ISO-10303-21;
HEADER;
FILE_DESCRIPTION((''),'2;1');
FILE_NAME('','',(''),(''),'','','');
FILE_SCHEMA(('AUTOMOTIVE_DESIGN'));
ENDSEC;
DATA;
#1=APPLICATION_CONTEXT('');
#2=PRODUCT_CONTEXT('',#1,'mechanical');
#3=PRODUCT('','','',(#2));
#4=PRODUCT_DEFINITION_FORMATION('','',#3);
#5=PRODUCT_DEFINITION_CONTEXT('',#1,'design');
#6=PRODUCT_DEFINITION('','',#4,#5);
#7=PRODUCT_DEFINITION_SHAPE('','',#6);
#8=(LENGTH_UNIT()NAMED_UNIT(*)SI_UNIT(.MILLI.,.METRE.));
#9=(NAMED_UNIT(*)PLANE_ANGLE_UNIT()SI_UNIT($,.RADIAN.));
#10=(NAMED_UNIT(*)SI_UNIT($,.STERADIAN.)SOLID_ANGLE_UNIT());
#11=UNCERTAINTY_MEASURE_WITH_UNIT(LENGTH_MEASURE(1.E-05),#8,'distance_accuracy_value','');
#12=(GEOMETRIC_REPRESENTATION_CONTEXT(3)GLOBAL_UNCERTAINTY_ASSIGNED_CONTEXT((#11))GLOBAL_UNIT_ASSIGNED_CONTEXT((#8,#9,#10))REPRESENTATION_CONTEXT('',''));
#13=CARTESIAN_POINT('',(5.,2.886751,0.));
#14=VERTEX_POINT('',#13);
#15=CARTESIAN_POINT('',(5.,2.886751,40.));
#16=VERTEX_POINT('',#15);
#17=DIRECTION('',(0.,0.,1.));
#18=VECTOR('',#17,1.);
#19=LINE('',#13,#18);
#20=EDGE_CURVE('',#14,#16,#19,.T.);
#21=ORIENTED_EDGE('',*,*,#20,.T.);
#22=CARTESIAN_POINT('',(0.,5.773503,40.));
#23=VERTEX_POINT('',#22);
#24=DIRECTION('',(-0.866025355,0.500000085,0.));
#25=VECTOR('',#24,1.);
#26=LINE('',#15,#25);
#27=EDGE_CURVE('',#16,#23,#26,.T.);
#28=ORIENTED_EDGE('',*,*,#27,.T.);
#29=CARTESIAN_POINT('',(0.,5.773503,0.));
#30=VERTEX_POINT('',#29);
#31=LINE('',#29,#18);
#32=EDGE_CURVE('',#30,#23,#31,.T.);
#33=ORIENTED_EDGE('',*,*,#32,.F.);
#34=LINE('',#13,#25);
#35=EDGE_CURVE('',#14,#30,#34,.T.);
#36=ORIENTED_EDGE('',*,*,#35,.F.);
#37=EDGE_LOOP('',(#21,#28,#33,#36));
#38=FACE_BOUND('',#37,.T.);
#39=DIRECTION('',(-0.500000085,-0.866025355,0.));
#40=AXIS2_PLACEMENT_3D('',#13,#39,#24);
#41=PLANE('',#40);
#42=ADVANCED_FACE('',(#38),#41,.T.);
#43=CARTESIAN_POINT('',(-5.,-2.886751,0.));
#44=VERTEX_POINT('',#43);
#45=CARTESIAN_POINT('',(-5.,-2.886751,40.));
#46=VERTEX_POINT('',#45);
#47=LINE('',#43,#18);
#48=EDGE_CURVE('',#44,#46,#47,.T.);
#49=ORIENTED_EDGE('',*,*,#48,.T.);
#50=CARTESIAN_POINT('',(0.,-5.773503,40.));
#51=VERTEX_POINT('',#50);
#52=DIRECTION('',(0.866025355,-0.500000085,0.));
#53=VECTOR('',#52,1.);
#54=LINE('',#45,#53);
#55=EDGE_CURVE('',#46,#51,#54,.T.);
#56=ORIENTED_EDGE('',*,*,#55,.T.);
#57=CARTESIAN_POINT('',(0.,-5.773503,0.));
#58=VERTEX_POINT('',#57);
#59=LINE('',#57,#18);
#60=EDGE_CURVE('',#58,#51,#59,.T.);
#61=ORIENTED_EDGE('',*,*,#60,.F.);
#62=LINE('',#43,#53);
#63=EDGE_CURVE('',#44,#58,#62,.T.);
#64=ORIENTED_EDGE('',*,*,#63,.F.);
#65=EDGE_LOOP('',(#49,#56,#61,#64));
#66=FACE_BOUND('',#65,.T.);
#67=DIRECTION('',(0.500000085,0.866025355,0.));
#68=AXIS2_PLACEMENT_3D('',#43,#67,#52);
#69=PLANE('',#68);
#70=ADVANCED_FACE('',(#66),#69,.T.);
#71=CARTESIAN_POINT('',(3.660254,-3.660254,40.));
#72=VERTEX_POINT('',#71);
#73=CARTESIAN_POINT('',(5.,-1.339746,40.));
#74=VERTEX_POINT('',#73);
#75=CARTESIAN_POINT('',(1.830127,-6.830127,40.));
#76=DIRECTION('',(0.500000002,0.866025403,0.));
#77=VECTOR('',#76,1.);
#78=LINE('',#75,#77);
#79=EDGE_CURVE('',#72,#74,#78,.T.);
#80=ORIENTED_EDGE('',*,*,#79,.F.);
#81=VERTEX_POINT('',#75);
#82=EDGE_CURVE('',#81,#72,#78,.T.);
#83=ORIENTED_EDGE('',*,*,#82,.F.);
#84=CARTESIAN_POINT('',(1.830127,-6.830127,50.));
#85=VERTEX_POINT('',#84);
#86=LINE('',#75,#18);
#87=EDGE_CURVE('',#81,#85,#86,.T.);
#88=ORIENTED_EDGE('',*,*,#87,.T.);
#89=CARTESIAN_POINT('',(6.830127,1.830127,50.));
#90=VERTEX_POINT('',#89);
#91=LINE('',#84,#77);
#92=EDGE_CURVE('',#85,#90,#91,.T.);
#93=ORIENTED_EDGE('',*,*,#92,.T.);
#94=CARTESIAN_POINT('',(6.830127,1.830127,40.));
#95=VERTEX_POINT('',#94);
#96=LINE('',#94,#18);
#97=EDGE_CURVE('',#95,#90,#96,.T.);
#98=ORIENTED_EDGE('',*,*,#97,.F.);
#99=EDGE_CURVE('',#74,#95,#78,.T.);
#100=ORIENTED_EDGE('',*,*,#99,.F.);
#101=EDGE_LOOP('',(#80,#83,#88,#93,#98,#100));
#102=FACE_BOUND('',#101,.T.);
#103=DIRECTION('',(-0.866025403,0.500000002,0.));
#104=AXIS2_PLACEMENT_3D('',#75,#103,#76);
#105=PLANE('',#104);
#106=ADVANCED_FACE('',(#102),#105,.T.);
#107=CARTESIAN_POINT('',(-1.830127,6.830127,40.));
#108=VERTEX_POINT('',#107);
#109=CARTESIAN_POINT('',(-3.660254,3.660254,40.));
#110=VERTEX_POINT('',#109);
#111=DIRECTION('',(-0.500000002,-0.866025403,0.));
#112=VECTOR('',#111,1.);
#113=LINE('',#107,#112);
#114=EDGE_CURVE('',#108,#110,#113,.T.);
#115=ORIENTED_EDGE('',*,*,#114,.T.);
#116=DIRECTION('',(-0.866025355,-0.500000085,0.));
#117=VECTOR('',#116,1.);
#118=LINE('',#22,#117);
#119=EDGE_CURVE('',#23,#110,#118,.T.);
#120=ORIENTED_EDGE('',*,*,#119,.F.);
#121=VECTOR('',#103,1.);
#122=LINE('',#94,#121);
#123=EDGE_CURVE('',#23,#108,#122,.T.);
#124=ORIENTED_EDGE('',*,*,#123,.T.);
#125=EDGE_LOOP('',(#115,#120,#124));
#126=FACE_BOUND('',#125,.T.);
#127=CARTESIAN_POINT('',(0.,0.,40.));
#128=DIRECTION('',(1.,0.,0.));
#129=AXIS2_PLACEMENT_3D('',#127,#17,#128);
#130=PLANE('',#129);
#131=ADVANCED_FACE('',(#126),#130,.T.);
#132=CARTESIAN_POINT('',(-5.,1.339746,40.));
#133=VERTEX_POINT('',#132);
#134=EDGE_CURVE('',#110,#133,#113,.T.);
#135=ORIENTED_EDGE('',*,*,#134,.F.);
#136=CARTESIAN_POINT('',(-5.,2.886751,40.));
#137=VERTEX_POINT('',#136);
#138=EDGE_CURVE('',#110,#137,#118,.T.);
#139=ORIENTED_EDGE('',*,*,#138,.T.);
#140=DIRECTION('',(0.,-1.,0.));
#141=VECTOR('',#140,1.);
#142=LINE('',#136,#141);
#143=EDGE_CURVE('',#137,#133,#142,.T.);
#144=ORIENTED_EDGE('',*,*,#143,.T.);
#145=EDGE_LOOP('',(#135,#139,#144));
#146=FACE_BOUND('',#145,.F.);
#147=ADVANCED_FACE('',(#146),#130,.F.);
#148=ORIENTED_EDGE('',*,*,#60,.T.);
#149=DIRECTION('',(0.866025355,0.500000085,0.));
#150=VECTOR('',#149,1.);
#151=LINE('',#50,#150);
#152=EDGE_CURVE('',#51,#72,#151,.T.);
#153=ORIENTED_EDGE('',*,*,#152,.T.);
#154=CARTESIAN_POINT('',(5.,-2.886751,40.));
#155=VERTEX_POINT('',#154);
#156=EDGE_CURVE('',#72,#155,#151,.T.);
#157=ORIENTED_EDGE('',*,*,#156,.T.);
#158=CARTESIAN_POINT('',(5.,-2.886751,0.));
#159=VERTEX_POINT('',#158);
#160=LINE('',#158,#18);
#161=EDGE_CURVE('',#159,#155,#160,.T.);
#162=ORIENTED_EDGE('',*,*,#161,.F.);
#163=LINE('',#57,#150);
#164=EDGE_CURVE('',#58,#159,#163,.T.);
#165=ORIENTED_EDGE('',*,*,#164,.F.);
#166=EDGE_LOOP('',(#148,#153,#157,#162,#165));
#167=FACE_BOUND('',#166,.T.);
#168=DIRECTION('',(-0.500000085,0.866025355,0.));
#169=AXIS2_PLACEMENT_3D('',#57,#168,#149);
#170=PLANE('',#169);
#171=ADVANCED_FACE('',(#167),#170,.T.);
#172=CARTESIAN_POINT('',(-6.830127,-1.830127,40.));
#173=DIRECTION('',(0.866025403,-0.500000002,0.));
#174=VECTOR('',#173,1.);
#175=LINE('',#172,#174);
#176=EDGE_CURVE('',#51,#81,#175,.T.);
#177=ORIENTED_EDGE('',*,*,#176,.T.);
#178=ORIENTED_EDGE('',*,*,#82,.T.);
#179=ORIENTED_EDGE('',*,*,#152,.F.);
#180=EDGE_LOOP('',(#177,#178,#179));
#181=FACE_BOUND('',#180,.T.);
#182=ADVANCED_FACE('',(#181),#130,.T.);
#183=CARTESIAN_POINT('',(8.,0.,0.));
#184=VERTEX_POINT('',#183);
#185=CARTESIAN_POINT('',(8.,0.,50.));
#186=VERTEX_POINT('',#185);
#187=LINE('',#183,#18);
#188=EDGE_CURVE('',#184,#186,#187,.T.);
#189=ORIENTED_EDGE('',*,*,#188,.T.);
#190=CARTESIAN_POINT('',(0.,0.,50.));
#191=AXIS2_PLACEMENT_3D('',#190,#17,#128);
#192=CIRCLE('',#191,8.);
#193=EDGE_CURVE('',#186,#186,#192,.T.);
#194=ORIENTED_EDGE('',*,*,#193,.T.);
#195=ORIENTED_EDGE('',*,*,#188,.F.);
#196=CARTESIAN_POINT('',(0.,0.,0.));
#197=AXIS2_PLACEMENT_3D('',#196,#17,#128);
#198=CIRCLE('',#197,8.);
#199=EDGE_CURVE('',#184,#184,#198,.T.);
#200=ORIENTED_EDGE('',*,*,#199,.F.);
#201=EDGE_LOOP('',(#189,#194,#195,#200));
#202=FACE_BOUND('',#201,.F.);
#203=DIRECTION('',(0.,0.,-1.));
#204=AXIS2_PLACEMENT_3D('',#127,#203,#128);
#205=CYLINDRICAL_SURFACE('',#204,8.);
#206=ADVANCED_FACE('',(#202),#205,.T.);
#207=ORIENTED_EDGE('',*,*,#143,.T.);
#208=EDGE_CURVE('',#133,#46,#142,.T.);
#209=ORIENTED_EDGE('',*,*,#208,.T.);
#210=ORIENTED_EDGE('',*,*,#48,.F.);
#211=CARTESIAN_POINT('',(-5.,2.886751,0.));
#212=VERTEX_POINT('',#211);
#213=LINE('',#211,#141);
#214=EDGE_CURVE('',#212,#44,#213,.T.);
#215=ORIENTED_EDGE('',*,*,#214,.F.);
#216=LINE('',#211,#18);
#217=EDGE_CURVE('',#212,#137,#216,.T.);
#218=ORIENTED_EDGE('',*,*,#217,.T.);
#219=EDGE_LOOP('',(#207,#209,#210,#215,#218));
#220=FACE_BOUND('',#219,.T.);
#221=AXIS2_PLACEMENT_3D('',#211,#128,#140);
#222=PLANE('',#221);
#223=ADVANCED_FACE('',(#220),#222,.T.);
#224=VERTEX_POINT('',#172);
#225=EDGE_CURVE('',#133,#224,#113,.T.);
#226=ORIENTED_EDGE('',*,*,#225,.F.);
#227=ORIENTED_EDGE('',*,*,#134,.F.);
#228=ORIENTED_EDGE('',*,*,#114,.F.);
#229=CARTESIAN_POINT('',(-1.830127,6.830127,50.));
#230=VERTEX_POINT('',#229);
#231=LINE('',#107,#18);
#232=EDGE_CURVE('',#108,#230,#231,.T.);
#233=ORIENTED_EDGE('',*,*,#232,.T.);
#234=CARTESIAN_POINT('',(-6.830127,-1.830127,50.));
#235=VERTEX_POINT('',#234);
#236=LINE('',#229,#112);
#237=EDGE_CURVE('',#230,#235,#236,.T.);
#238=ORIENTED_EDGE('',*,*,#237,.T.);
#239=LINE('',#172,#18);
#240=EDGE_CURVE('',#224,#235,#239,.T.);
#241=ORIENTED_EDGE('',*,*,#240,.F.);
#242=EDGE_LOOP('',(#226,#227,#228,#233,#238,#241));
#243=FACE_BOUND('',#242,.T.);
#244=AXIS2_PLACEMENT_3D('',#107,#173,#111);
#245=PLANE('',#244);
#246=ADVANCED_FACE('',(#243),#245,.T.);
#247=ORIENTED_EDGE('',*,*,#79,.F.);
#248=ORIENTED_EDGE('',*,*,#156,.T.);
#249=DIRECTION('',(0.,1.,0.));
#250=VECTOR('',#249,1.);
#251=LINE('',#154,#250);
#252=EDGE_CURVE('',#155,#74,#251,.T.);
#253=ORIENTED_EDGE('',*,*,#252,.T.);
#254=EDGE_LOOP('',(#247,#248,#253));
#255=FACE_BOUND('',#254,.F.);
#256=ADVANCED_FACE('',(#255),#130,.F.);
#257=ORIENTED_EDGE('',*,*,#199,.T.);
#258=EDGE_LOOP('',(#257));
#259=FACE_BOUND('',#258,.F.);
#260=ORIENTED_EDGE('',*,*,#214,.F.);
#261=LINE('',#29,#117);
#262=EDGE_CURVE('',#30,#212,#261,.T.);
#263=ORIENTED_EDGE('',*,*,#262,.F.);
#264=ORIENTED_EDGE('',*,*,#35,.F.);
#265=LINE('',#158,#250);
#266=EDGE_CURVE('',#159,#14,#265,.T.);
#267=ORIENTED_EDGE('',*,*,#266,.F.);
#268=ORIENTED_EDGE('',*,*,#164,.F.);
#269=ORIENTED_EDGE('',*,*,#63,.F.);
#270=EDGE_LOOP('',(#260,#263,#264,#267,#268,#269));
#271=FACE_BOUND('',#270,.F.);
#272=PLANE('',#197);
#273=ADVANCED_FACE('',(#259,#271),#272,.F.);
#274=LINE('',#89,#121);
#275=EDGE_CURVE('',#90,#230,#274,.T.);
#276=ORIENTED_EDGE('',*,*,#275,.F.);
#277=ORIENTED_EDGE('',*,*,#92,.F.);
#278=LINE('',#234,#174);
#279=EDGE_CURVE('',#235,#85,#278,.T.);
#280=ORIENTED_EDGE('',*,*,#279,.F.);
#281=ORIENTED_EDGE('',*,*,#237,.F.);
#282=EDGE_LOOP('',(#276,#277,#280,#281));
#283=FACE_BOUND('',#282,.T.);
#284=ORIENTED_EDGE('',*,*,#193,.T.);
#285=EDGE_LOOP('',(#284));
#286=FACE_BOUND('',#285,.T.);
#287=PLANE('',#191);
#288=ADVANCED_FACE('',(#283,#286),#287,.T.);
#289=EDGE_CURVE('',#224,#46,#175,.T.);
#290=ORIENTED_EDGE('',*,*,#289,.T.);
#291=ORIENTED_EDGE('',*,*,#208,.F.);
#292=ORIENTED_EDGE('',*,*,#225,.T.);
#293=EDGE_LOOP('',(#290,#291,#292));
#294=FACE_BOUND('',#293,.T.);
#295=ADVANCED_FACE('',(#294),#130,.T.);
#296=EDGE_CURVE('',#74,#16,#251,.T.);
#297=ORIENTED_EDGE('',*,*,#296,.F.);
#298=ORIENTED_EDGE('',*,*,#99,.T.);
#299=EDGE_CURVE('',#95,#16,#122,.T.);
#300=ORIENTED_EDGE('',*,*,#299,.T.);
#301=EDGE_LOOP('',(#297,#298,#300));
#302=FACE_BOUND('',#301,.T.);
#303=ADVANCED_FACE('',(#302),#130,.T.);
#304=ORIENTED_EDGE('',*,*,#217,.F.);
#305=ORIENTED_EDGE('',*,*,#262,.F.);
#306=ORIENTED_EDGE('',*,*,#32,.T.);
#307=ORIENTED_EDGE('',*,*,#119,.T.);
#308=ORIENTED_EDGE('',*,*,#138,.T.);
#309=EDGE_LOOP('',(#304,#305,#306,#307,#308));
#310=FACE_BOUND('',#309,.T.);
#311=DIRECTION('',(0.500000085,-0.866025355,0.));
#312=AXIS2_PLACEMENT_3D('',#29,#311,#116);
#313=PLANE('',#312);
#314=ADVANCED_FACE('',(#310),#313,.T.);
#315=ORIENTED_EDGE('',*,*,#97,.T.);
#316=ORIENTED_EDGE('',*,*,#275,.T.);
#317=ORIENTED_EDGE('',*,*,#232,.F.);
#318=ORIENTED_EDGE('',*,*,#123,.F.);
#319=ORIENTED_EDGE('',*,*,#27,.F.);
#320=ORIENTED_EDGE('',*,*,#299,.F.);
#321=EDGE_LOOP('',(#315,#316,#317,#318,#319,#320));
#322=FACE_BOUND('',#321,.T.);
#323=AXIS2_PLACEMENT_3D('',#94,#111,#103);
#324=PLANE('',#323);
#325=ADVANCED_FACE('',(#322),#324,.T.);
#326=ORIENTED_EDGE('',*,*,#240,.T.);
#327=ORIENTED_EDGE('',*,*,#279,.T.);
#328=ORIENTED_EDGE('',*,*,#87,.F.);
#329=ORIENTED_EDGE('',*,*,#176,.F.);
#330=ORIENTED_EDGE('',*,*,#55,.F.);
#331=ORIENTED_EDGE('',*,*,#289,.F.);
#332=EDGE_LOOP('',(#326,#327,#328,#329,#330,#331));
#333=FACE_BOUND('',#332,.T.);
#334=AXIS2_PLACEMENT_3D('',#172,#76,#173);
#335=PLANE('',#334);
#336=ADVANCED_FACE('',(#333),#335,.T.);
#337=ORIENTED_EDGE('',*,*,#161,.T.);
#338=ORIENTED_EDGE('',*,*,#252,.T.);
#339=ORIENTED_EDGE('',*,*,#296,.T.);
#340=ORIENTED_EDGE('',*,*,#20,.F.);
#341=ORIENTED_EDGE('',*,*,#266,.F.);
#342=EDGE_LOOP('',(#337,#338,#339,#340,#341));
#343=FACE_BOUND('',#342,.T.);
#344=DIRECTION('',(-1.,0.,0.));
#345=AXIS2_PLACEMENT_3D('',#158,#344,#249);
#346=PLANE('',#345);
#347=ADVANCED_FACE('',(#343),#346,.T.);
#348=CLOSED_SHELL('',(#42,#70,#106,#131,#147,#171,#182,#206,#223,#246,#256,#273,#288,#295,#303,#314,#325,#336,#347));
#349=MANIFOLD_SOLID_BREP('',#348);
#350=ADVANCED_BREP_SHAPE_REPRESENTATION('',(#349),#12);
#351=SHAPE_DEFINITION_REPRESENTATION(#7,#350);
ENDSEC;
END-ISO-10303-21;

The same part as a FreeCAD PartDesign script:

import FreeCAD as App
import Part
import Sketcher
from FreeCAD import Vector
Q = App.Units.Quantity


def add_polygon(sketch, points):
    """Adds a closed chain of lines whose ends are joined by coincident constraints."""
    first, n = sketch.GeometryCount, len(points)
    for a, b in zip(points, points[1:] + points[:1]):
        sketch.addGeometry(Part.LineSegment(App.Vector(*a, 0), App.Vector(*b, 0)), False)
    for i in range(n):
        sketch.addConstraint(Sketcher.Constraint("Coincident", first + i, 2, first + (i + 1) % n, 1))

doc = App.newDocument("Part")
body = doc.addObject("PartDesign::Body", "Body")

sketch1 = body.newObject("Sketcher::SketchObject", "Sketch")
sketch1.AttachmentSupport = (doc.getObject("XY_Plane"), [""])
sketch1.MapMode = "FlatFace"
sketch1.addGeometry(Part.Circle(Vector(0, 0, 0), Vector(0, 0, 1), 8), False)
add_polygon(sketch1, [(5, 3), (5, -3), (0, -6), (-5, -3), (-5, 3), (0, 6)])
sketch1.addConstraint(Sketcher.Constraint("Vertical", 1))
sketch1.addConstraint(Sketcher.Constraint("Vertical", 4))
sketch1.addConstraint(Sketcher.Constraint("Coincident", 0, 3, -1, 1))
sketch1.addConstraint(Sketcher.Constraint("Symmetric", 1, 2, 4, 2, -1, 1))
sketch1.addConstraint(Sketcher.Constraint("Symmetric", 2, 2, 5, 2, -1, 1))
sketch1.addConstraint(Sketcher.Constraint("PointOnObject", 2, 2, -2))
sketch1.addConstraint(Sketcher.Constraint("Parallel", 3, 6))
sketch1.addConstraint(Sketcher.Constraint("Horizontal", 1, 2, 3, 2))
sketch1.addConstraint(Sketcher.Constraint("Diameter", 0, 16.0))
sketch1.addConstraint(Sketcher.Constraint("Angle", 2, Q("-149.999994 deg")))
sketch1.addConstraint(Sketcher.Constraint("DistanceX", -1, 1, 1, 2, 5.0))
sketch1.addConstraint(Sketcher.Constraint("DistanceY", 1, 2, 1, 1, 5.773502))
pad1 = body.newObject("PartDesign::Pad", "Pad")
pad1.Profile = sketch1
pad1.Length = 40

sketch2 = body.newObject("Sketcher::SketchObject", "Sketch001")
sketch2.AttachmentSupport = (doc.getObject("XY_Plane"), [""])
sketch2.MapMode = "FlatFace"
sketch2.AttachmentOffset = App.Placement(Vector(0, 0, 40), App.Rotation())
sketch2.addGeometry(Part.Circle(Vector(0, 0, 0), Vector(0, 0, 1), 8), False)
add_polygon(sketch2, [(-7, -2), (-2, 7), (7, 2), (2, -7)])
sketch2.addConstraint(Sketcher.Constraint("Coincident", 0, 3, -1, 1))
sketch2.addConstraint(Sketcher.Constraint("Symmetric", 1, 2, 3, 2, -1, 1))
sketch2.addConstraint(Sketcher.Constraint("Symmetric", 2, 2, 4, 2, -1, 1))
sketch2.addConstraint(Sketcher.Constraint("Perpendicular", 1, 2))
sketch2.addConstraint(Sketcher.Constraint("Equal", 1, 2))
sketch2.addConstraint(Sketcher.Constraint("Diameter", 0, 16.0))
sketch2.addConstraint(Sketcher.Constraint("Angle", 1, Q("60 deg")))
sketch2.addConstraint(Sketcher.Constraint("Distance", 1, 10.0))
pad2 = body.newObject("PartDesign::Pad", "Pad001")
pad2.Profile = sketch2
pad2.Length = 10

doc.recompute()
